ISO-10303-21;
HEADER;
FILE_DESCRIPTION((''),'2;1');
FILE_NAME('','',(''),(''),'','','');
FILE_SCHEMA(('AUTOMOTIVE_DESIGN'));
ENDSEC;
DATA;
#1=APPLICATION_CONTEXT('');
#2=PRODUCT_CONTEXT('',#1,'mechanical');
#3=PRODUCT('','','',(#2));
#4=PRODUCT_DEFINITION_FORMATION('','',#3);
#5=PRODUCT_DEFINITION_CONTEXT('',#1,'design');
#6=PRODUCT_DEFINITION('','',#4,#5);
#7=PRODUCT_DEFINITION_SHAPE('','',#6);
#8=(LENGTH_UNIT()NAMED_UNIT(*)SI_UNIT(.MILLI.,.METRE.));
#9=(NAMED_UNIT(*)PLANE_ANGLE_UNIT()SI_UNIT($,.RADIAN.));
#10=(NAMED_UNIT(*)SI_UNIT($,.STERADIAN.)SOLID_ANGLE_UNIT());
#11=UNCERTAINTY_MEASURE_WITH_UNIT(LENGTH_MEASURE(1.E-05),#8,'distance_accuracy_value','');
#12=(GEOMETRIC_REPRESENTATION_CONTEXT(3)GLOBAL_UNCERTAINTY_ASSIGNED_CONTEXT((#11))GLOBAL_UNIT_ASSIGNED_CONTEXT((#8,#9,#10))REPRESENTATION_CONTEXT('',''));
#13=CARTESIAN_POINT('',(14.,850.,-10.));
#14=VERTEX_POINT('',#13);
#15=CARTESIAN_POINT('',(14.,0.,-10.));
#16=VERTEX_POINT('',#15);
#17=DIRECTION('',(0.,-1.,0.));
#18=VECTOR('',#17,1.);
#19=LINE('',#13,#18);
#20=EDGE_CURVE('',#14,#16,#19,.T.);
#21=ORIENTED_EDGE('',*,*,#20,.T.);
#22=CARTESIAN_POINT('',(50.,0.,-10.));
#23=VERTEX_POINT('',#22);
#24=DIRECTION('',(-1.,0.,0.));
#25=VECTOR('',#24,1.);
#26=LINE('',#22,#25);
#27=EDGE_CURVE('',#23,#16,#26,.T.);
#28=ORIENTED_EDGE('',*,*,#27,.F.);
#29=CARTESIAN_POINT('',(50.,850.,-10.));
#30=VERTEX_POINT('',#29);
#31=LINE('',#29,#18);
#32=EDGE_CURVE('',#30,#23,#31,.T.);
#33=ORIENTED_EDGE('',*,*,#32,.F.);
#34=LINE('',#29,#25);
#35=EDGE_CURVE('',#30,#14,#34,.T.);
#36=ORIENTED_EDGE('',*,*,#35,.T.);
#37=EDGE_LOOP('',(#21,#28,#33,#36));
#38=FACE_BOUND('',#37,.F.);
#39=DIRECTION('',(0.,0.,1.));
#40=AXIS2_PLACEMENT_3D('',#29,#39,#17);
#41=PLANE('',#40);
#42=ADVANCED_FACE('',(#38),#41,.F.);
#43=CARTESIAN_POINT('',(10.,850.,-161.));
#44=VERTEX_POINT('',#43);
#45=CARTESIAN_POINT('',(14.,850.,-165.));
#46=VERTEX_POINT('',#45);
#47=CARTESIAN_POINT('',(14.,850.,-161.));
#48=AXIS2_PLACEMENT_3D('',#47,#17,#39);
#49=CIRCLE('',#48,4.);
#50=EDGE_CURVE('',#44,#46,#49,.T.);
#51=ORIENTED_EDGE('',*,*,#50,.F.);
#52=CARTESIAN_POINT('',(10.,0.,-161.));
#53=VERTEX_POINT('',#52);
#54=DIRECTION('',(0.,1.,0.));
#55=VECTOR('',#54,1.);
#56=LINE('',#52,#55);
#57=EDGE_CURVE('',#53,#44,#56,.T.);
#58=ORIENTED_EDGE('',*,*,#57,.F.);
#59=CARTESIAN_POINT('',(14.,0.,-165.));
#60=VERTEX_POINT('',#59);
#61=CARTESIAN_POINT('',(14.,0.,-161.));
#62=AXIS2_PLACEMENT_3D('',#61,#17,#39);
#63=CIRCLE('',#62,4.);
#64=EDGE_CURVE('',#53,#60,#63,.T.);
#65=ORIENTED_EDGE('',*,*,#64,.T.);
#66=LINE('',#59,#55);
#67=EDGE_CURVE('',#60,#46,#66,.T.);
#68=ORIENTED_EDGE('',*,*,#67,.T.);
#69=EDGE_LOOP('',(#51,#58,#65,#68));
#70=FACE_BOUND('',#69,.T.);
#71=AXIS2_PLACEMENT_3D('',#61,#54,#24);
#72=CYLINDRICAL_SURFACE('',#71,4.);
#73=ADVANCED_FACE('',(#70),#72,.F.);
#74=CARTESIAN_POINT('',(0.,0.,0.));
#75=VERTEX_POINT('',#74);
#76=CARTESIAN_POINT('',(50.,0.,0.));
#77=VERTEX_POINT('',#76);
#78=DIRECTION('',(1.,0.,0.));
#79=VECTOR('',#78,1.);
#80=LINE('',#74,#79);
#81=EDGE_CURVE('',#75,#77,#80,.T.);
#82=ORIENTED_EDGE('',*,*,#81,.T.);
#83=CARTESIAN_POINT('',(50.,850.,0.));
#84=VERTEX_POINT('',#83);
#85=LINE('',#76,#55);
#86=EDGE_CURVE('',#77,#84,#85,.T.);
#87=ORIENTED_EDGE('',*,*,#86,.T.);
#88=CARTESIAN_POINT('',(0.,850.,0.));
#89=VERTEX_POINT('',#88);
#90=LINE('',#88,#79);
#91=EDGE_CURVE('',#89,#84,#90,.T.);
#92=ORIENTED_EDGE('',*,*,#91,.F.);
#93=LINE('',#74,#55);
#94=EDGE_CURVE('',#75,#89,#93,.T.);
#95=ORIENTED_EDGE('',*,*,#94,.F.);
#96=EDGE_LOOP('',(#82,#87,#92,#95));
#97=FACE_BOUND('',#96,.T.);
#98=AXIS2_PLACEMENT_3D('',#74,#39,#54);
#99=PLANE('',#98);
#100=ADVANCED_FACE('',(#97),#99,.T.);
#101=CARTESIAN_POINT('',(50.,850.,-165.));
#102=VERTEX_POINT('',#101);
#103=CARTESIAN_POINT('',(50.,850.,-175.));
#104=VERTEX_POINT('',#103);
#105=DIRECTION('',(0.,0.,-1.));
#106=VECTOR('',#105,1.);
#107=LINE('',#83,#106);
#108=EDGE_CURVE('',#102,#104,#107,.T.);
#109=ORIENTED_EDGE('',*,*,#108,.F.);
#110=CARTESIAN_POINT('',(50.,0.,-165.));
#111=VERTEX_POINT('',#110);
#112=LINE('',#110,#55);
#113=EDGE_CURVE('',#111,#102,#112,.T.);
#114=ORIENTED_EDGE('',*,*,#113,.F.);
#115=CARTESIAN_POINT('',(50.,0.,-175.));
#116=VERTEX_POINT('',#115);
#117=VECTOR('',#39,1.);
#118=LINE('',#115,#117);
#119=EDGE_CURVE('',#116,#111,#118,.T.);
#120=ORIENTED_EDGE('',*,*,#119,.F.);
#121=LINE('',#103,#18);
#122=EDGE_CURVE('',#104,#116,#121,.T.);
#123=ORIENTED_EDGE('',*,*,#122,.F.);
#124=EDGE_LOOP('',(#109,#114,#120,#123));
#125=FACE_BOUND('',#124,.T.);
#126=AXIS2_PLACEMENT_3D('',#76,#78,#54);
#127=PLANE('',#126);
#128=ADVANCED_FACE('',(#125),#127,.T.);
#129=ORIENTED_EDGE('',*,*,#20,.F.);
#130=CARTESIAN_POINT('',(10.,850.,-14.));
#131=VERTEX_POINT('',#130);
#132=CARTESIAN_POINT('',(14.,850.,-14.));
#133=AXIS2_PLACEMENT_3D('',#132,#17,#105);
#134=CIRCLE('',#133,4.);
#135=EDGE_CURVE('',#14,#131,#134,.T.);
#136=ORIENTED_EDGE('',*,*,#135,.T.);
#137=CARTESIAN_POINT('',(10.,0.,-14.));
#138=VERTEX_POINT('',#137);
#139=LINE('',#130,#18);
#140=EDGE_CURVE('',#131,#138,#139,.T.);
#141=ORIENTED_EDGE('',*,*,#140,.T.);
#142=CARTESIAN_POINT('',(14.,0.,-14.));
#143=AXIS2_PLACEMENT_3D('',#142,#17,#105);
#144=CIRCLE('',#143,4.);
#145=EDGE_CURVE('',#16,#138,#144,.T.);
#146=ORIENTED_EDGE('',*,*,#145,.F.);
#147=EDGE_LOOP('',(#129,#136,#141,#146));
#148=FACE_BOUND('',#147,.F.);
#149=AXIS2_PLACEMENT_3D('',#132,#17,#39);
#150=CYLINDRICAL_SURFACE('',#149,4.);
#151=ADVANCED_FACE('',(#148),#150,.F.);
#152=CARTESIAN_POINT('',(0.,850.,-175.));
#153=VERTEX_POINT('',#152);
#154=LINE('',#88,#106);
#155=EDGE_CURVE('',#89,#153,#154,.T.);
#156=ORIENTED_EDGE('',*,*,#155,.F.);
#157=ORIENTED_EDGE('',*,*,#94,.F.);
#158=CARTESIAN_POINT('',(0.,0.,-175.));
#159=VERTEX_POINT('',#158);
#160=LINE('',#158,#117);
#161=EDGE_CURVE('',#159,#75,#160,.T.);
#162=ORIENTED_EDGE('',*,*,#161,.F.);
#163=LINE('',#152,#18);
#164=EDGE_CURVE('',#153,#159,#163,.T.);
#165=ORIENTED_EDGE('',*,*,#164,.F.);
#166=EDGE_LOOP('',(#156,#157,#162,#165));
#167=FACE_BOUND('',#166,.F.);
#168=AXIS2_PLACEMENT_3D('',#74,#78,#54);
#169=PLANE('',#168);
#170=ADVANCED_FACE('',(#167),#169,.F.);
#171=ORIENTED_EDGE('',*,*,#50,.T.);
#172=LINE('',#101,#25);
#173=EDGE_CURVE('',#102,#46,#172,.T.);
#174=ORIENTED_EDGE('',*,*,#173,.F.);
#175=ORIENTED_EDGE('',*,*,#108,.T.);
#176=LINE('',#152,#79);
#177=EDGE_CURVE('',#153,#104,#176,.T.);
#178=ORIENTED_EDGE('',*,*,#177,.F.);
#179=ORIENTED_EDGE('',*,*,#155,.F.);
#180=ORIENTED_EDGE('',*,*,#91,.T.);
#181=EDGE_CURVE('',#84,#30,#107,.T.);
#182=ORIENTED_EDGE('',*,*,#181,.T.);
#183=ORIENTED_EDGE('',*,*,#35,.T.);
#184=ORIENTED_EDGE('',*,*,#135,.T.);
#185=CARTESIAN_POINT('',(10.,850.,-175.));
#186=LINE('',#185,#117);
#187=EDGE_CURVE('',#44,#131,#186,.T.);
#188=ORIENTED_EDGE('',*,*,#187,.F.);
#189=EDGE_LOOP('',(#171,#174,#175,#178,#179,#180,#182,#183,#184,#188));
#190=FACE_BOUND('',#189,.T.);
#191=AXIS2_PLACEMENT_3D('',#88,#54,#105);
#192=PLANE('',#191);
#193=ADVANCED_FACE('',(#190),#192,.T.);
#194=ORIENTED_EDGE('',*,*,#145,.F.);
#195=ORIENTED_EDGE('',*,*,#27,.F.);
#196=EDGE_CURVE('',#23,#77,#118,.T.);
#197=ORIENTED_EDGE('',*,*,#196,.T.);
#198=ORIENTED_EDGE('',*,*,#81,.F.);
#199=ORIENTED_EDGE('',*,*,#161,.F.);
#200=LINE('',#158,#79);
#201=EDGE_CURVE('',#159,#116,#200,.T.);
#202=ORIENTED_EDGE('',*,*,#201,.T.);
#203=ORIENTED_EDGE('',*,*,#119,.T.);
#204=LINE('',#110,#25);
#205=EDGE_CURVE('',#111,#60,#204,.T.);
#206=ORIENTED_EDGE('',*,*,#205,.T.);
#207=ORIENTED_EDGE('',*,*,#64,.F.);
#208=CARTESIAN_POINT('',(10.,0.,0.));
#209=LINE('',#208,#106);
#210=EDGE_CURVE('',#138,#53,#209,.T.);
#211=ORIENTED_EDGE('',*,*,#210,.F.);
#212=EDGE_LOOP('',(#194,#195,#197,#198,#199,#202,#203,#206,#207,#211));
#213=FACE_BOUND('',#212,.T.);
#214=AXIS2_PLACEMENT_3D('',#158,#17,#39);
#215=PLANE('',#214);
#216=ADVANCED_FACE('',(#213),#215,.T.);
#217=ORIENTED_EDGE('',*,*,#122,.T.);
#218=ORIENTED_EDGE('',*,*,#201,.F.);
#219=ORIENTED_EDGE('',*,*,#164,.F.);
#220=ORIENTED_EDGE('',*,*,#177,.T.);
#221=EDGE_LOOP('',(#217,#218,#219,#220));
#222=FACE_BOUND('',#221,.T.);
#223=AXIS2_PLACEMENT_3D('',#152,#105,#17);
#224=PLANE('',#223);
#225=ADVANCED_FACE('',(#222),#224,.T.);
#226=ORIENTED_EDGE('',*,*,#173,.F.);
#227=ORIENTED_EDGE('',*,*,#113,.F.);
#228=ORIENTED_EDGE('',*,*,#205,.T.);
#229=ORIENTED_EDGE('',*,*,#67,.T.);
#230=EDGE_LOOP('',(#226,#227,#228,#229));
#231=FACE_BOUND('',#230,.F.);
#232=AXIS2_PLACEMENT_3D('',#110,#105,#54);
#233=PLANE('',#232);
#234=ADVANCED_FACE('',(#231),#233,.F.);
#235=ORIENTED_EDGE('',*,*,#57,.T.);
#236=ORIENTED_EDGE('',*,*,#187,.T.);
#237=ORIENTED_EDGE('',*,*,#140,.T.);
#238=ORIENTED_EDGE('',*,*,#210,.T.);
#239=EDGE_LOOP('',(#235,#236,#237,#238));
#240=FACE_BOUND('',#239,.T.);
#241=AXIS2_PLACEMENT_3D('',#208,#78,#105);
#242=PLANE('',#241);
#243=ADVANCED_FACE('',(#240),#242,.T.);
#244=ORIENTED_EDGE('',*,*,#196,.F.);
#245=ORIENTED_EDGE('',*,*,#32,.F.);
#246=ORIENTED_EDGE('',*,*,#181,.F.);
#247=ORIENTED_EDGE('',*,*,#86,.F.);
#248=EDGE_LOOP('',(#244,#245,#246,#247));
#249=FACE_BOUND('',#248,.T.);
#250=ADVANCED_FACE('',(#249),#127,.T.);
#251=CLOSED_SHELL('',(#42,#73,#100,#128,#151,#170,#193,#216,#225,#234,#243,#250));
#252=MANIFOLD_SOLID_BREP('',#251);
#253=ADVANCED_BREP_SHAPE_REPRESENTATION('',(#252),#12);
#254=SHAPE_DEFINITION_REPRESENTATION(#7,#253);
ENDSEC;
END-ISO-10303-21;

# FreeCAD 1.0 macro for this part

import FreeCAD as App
import Part
import Sketcher
from FreeCAD import Vector


def edges_at(feature, points):
    """Names of the edges that pass closest to the given points."""
    edges = feature.Shape.Edges
    near = lambda p: min(range(len(edges)), key=lambda i: edges[i].distToShape(Part.Vertex(*p))[0])
    return sorted({f"Edge{near(p) + 1}" for p in points})


def add_polygon(sketch, points):
    """Adds a closed chain of lines whose ends are joined by coincident constraints."""
    first, n = sketch.GeometryCount, len(points)
    for a, b in zip(points, points[1:] + points[:1]):
        sketch.addGeometry(Part.LineSegment(App.Vector(*a, 0), App.Vector(*b, 0)), False)
    for i in range(n):
        sketch.addConstraint(Sketcher.Constraint("Coincident", first + i, 2, first + (i + 1) % n, 1))

doc = App.newDocument("Part")
body = doc.addObject("PartDesign::Body", "Body")

# Sketch on YZ plane
sketch1 = body.newObject("Sketcher::SketchObject", "Sketch")
sketch1.AttachmentSupport = (doc.getObject("YZ_Plane"), [""])
sketch1.MapMode = "FlatFace"
add_polygon(sketch1, [(850, 0), (0, 0), (0, -175), (850, -175)])  # lines 0-3
sketch1.addConstraint(Sketcher.Constraint("Horizontal", 0))
sketch1.addConstraint(Sketcher.Constraint("Vertical", 1))
sketch1.addConstraint(Sketcher.Constraint("Horizontal", 2))
sketch1.addConstraint(Sketcher.Constraint("Vertical", 3))
sketch1.addConstraint(Sketcher.Constraint("Coincident", 0, 2, -1, 1))
sketch1.addConstraint(Sketcher.Constraint("DistanceX", 0, 2, 0, 1, 850.0))
sketch1.addConstraint(Sketcher.Constraint("DistanceY", 1, 2, 1, 1, 175.0))
pad1 = body.newObject("PartDesign::Pad", "Pad")
pad1.Profile = sketch1
pad1.Length = 50

# Sketch on YZ plane
sketch2 = body.newObject("Sketcher::SketchObject", "Sketch001")
sketch2.AttachmentSupport = (doc.getObject("YZ_Plane"), [""])
sketch2.MapMode = "FlatFace"
sketch2.AttachmentOffset = App.Placement(Vector(0, 0, 50), App.Rotation())
add_polygon(sketch2, [(850, -10), (0, -10), (0, -165), (850, -165)])  # lines 0-3
sketch2.addConstraint(Sketcher.Constraint("Horizontal", 0))
sketch2.addConstraint(Sketcher.Constraint("Vertical", 1))
sketch2.addConstraint(Sketcher.Constraint("Horizontal", 2))
sketch2.addConstraint(Sketcher.Constraint("Vertical", 3))
sketch2.addConstraint(Sketcher.Constraint("PointOnObject", 0, 2, -2))
sketch2.addConstraint(Sketcher.Constraint("DistanceY", 1, 2, 1, 1, 155.0))
sketch2.addConstraint(Sketcher.Constraint("DistanceX", 0, 2, 0, 1, 850.0))
sketch2.addConstraint(Sketcher.Constraint("DistanceY", 0, 2, -1, 1, 10.0))
pocket1 = body.newObject("PartDesign::Pocket", "Pocket")
pocket1.Profile = sketch2
pocket1.Length = 40
doc.recompute()

fillet = body.newObject("PartDesign::Fillet", "Fillet")
fillet.Base = (pocket1, edges_at(pocket1, [(10, 425, -165), (10, 425, -10)]))
fillet.Radius = 4

doc.recompute()
